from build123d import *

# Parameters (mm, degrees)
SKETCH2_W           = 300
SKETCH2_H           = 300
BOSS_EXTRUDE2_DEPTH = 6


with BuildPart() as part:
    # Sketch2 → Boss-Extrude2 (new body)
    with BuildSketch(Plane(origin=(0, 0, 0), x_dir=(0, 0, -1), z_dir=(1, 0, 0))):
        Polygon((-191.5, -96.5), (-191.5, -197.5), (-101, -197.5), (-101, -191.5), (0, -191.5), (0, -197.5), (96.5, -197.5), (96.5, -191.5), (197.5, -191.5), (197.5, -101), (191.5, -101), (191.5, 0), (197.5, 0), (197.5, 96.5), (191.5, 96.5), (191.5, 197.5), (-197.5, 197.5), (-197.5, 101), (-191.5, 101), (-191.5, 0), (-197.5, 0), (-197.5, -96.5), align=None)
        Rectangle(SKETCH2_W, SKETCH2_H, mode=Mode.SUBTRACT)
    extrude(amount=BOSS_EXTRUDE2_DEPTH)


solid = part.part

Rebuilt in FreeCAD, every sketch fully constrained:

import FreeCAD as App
import Part
import Sketcher
Q = App.Units.Quantity

doc = App.newDocument("Part")
body = doc.addObject("PartDesign::Body", "Body")

# Sketch on YZ plane
sketch1 = body.newObject("Sketcher::SketchObject", "Sketch")
sketch1.AttachmentSupport = (doc.getObject("YZ_Plane"), [""])
sketch1.MapMode = "FlatFace"
sketch1.addGeometry(Part.LineSegment(App.Vector(-96.5, 191.5, 0), App.Vector(-197.5, 191.5, 0)), False)
sketch1.addGeometry(Part.LineSegment(App.Vector(-197.5, 191.5, 0), App.Vector(-197.5, 101, 0)), False)
sketch1.addGeometry(Part.LineSegment(App.Vector(-197.5, 101, 0), App.Vector(-191.5, 101, 0)), False)
sketch1.addGeometry(Part.LineSegment(App.Vector(-191.5, 101, 0), App.Vector(-191.5, 0, 0)), False)
sketch1.addGeometry(Part.LineSegment(App.Vector(-191.5, 0, 0), App.Vector(-197.5, 0, 0)), False)
sketch1.addGeometry(Part.LineSegment(App.Vector(-197.5, 0, 0), App.Vector(-197.5, -96.5, 0)), False)
sketch1.addGeometry(Part.LineSegment(App.Vector(-197.5, -96.5, 0), App.Vector(-191.5, -96.5, 0)), False)
sketch1.addGeometry(Part.LineSegment(App.Vector(-191.5, -96.5, 0), App.Vector(-191.5, -197.5, 0)), False)
sketch1.addGeometry(Part.LineSegment(App.Vector(-191.5, -197.5, 0), App.Vector(-101, -197.5, 0)), False)
sketch1.addGeometry(Part.LineSegment(App.Vector(-101, -197.5, 0), App.Vector(-101, -191.5, 0)), False)
sketch1.addGeometry(Part.LineSegment(App.Vector(-101, -191.5, 0), App.Vector(0, -191.5, 0)), False)
sketch1.addGeometry(Part.LineSegment(App.Vector(0, -191.5, 0), App.Vector(0, -197.5, 0)), False)
sketch1.addGeometry(Part.LineSegment(App.Vector(0, -197.5, 0), App.Vector(96.5, -197.5, 0)), False)
sketch1.addGeometry(Part.LineSegment(App.Vector(96.5, -197.5, 0), App.Vector(96.5, -191.5, 0)), False)
sketch1.addGeometry(Part.LineSegment(App.Vector(96.5, -191.5, 0), App.Vector(197.5, -191.5, 0)), False)
sketch1.addGeometry(Part.LineSegment(App.Vector(197.5, -191.5, 0), App.Vector(197.5, 197.5, 0)), False)
sketch1.addGeometry(Part.LineSegment(App.Vector(197.5, 197.5, 0), App.Vector(101, 197.5, 0)), False)
sketch1.addGeometry(Part.LineSegment(App.Vector(101, 197.5, 0), App.Vector(101, 191.5, 0)), False)
sketch1.addGeometry(Part.LineSegment(App.Vector(101, 191.5, 0), App.Vector(0, 191.5, 0)), False)
sketch1.addGeometry(Part.LineSegment(App.Vector(0, 191.5, 0), App.Vector(0, 197.5, 0)), False)
sketch1.addGeometry(Part.LineSegment(App.Vector(0, 197.5, 0), App.Vector(-96.5, 197.5, 0)), False)
sketch1.addGeometry(Part.LineSegment(App.Vector(-96.5, 197.5, 0), App.Vector(-96.5, 191.5, 0)), False)
sketch1.addGeometry(Part.LineSegment(App.Vector(-150, -150, 0), App.Vector(-150, 150, 0)), False)
sketch1.addGeometry(Part.LineSegment(App.Vector(-150, 150, 0), App.Vector(150, 150, 0)), False)
sketch1.addGeometry(Part.LineSegment(App.Vector(150, 150, 0), App.Vector(150, -150, 0)), False)
sketch1.addGeometry(Part.LineSegment(App.Vector(150, -150, 0), App.Vector(-150, -150, 0)), False)
sketch1.addConstraint(Sketcher.Constraint("Coincident", 0, 2, 1, 1))
sketch1.addConstraint(Sketcher.Constraint("Coincident", 1, 2, 2, 1))
sketch1.addConstraint(Sketcher.Constraint("Coincident", 2, 2, 3, 1))
sketch1.addConstraint(Sketcher.Constraint("Coincident", 3, 2, 4, 1))
sketch1.addConstraint(Sketcher.Constraint("Coincident", 4, 2, 5, 1))
sketch1.addConstraint(Sketcher.Constraint("Coincident", 5, 2, 6, 1))
sketch1.addConstraint(Sketcher.Constraint("Coincident", 6, 2, 7, 1))
sketch1.addConstraint(Sketcher.Constraint("Coincident", 7, 2, 8, 1))
sketch1.addConstraint(Sketcher.Constraint("Coincident", 8, 2, 9, 1))
sketch1.addConstraint(Sketcher.Constraint("Coincident", 9, 2, 10, 1))
sketch1.addConstraint(Sketcher.Constraint("Coincident", 10, 2, 11, 1))
sketch1.addConstraint(Sketcher.Constraint("Coincident", 11, 2, 12, 1))
sketch1.addConstraint(Sketcher.Constraint("Coincident", 12, 2, 13, 1))
sketch1.addConstraint(Sketcher.Constraint("Coincident", 13, 2, 14, 1))
sketch1.addConstraint(Sketcher.Constraint("Coincident", 14, 2, 15, 1))
sketch1.addConstraint(Sketcher.Constraint("Coincident", 15, 2, 16, 1))
sketch1.addConstraint(Sketcher.Constraint("Coincident", 16, 2, 17, 1))
sketch1.addConstraint(Sketcher.Constraint("Coincident", 17, 2, 18, 1))
sketch1.addConstraint(Sketcher.Constraint("Coincident", 18, 2, 19, 1))
sketch1.addConstraint(Sketcher.Constraint("Coincident", 19, 2, 20, 1))
sketch1.addConstraint(Sketcher.Constraint("Coincident", 20, 2, 21, 1))
sketch1.addConstraint(Sketcher.Constraint("Coincident", 21, 2, 0, 1))
sketch1.addConstraint(Sketcher.Constraint("Coincident", 22, 2, 23, 1))
sketch1.addConstraint(Sketcher.Constraint("Coincident", 23, 2, 24, 1))
sketch1.addConstraint(Sketcher.Constraint("Coincident", 24, 2, 25, 1))
sketch1.addConstraint(Sketcher.Constraint("Coincident", 25, 2, 22, 1))
sketch1.addConstraint(Sketcher.Constraint("Horizontal", 0))
sketch1.addConstraint(Sketcher.Constraint("Vertical", 1))
sketch1.addConstraint(Sketcher.Constraint("Horizontal", 2))
sketch1.addConstraint(Sketcher.Constraint("Vertical", 3))
sketch1.addConstraint(Sketcher.Constraint("Horizontal", 4))
sketch1.addConstraint(Sketcher.Constraint("Vertical", 5))
sketch1.addConstraint(Sketcher.Constraint("Horizontal", 6))
sketch1.addConstraint(Sketcher.Constraint("Vertical", 7))
sketch1.addConstraint(Sketcher.Constraint("Horizontal", 8))
sketch1.addConstraint(Sketcher.Constraint("Vertical", 9))
sketch1.addConstraint(Sketcher.Constraint("Horizontal", 10))
sketch1.addConstraint(Sketcher.Constraint("Vertical", 11))
sketch1.addConstraint(Sketcher.Constraint("Horizontal", 12))
sketch1.addConstraint(Sketcher.Constraint("Vertical", 13))
sketch1.addConstraint(Sketcher.Constraint("Horizontal", 14))
sketch1.addConstraint(Sketcher.Constraint("Vertical", 15))
sketch1.addConstraint(Sketcher.Constraint("Horizontal", 16))
sketch1.addConstraint(Sketcher.Constraint("Vertical", 17))
sketch1.addConstraint(Sketcher.Constraint("Horizontal", 18))
sketch1.addConstraint(Sketcher.Constraint("Vertical", 19))
sketch1.addConstraint(Sketcher.Constraint("Horizontal", 20))
sketch1.addConstraint(Sketcher.Constraint("Vertical", 21))
sketch1.addConstraint(Sketcher.Constraint("Vertical", 22))
sketch1.addConstraint(Sketcher.Constraint("Horizontal", 23))
sketch1.addConstraint(Sketcher.Constraint("Vertical", 24))
sketch1.addConstraint(Sketcher.Constraint("Horizontal", 25))
sketch1.addConstraint(Sketcher.Constraint("Symmetric", 0, 2, 14, 2, -1, 1))
sketch1.addConstraint(Sketcher.Constraint("Symmetric", 8, 2, 16, 2, -1, 1))
sketch1.addConstraint(Sketcher.Constraint("Symmetric", 10, 2, 18, 2, -1, 1))
sketch1.addConstraint(Sketcher.Constraint("Symmetric", 12, 2, 20, 2, -1, 1))
sketch1.addConstraint(Sketcher.Constraint("Symmetric", 22, 2, 24, 2, -1, 1))
sketch1.addConstraint(Sketcher.Constraint("PointOnObject", 3, 2, -1))
sketch1.addConstraint(Sketcher.Constraint("PointOnObject", 10, 2, -2))
sketch1.addConstraint(Sketcher.Constraint("Horizontal", 8, 2, 11, 2))
sketch1.addConstraint(Sketcher.Constraint("Horizontal", 10, 2, 13, 2))
sketch1.addConstraint(Sketcher.Constraint("Vertical", 1, 2, 4, 2))
sketch1.addConstraint(Sketcher.Constraint("Vertical", 3, 2, 6, 2))
sketch1.addConstraint(Sketcher.Constraint("Equal", 0, 10))
sketch1.addConstraint(Sketcher.Constraint("Equal", 8, 1))
sketch1.addConstraint(Sketcher.Constraint("Equal", 18, 3))
sketch1.addConstraint(Sketcher.Constraint("Equal", 20, 5))
sketch1.addConstraint(Sketcher.Constraint("Equal", 3, 7))
sketch1.addConstraint(Sketcher.Constraint("Equal", 25, 22))
sketch1.addConstraint(Sketcher.Constraint("DistanceX", 0, 2, 0, 1, Q("101 mm")))
sketch1.addConstraint(Sketcher.Constraint("DistanceX", 2, 1, 2, 2, Q("6 mm")))
sketch1.addConstraint(Sketcher.Constraint("DistanceX", 23, 1, 23, 2, Q("300 mm")))
sketch1.addConstraint(Sketcher.Constraint("DistanceY", 15, 1, 15, 2, Q("389 mm")))
pad1 = body.newObject("PartDesign::Pad", "Pad")
pad1.Profile = sketch1
pad1.Length = 6

doc.recompute()
